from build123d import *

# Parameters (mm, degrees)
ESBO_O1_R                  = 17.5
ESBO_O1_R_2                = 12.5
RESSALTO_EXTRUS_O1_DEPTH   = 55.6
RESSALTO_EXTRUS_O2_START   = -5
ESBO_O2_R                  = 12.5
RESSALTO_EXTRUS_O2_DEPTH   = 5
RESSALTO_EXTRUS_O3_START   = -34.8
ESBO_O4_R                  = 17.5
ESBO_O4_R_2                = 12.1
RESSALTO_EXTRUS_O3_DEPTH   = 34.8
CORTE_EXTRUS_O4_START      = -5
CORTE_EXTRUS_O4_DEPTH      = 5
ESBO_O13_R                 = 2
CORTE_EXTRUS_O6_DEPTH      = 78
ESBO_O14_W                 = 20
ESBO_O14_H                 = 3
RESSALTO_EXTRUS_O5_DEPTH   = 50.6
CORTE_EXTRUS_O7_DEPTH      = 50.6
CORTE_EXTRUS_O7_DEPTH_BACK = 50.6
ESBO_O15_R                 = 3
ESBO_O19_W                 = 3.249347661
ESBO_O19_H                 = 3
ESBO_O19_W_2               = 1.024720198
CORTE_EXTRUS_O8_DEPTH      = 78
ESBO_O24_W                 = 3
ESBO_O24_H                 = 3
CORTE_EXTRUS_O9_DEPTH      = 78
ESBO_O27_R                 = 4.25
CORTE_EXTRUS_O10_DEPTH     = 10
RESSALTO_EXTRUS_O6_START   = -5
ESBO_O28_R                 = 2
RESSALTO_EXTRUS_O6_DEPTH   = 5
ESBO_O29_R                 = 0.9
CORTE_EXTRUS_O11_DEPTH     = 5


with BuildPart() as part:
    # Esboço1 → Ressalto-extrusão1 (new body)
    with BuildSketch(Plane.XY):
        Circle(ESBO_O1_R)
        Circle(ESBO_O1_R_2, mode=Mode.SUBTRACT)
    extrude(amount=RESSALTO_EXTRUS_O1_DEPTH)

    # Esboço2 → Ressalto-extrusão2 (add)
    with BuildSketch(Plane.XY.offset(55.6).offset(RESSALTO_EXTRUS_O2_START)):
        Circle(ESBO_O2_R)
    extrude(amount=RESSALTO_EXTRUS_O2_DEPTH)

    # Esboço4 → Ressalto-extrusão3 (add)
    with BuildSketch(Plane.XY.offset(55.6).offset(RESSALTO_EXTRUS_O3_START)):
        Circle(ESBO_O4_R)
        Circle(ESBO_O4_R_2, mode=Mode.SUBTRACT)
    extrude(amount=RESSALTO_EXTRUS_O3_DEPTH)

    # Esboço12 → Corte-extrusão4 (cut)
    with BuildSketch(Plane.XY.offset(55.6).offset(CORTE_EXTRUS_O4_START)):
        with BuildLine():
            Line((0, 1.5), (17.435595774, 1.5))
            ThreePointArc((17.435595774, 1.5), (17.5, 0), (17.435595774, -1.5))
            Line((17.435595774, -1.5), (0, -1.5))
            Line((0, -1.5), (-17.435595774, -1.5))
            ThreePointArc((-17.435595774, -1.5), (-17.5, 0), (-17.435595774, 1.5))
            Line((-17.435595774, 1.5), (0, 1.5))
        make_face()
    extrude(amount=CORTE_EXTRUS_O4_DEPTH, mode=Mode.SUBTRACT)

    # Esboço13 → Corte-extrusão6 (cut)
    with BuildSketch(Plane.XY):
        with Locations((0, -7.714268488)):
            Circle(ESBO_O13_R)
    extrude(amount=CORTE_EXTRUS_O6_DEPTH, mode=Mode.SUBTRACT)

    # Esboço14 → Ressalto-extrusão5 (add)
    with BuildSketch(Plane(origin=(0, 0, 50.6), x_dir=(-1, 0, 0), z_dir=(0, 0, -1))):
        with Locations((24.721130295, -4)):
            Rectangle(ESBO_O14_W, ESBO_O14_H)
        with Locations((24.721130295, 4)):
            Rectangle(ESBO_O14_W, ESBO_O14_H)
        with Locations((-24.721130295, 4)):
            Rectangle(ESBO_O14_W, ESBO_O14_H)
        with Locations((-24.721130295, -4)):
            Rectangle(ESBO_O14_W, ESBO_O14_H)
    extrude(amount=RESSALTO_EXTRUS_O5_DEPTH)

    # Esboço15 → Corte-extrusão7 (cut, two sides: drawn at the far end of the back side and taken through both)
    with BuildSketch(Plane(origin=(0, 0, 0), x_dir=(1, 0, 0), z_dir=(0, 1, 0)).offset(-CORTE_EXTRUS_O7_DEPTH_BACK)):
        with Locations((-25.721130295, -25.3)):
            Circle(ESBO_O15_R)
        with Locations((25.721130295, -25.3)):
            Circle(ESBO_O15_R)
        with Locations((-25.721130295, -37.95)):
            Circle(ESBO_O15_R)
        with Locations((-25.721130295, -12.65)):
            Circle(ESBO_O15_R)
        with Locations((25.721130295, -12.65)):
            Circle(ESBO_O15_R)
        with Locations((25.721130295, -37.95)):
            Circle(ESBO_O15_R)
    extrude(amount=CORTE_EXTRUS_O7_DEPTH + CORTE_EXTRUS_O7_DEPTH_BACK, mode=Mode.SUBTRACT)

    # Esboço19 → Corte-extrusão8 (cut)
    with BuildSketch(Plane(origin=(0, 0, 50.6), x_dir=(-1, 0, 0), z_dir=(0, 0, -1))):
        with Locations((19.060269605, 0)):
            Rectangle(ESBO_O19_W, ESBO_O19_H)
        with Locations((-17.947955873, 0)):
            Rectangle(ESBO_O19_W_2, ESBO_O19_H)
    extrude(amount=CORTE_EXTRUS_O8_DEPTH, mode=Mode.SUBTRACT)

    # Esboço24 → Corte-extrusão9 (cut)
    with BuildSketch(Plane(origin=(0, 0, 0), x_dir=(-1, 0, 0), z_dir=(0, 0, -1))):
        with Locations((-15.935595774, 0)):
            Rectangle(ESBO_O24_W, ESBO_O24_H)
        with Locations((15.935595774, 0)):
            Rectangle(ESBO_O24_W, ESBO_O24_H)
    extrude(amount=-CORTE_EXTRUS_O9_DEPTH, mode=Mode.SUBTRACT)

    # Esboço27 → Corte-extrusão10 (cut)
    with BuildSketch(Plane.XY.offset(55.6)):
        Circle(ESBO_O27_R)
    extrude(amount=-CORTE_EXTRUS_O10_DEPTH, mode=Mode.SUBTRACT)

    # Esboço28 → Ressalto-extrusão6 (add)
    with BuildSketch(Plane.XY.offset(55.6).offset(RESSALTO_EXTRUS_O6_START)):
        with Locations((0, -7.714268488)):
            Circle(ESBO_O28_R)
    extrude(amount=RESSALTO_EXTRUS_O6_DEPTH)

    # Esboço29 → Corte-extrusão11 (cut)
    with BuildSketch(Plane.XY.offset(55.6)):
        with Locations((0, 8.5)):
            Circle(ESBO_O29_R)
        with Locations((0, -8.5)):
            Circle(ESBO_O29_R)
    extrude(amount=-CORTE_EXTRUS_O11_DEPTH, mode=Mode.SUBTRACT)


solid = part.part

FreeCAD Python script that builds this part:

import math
import FreeCAD as App
import Part
import Sketcher
from FreeCAD import Vector
Q = App.Units.Quantity


def add_polygon(sketch, points):
    """Adds a closed chain of lines whose ends are joined by coincident constraints."""
    first, n = sketch.GeometryCount, len(points)
    for a, b in zip(points, points[1:] + points[:1]):
        sketch.addGeometry(Part.LineSegment(App.Vector(*a, 0), App.Vector(*b, 0)), False)
    for i in range(n):
        sketch.addConstraint(Sketcher.Constraint("Coincident", first + i, 2, first + (i + 1) % n, 1))

doc = App.newDocument("Part")
body = doc.addObject("PartDesign::Body", "Body")

# Sketch on XY plane
sketch1 = body.newObject("Sketcher::SketchObject", "Sketch")
sketch1.AttachmentSupport = (doc.getObject("XY_Plane"), [""])
sketch1.MapMode = "FlatFace"
sketch1.addGeometry(Part.Circle(Vector(0, 0, 0), Vector(0, 0, 1), 17.5), False)
sketch1.addGeometry(Part.Circle(Vector(0, 0, 0), Vector(0, 0, 1), 12.5), False)
sketch1.addConstraint(Sketcher.Constraint("Coincident", 0, 3, -1, 1))
sketch1.addConstraint(Sketcher.Constraint("Coincident", 1, 3, -1, 1))
sketch1.addConstraint(Sketcher.Constraint("Diameter", 0, Q("35 mm")))
sketch1.addConstraint(Sketcher.Constraint("Diameter", 1, Q("25 mm")))
pad1 = body.newObject("PartDesign::Pad", "Pad")
pad1.Profile = sketch1
pad1.Length = 55.6

# Sketch on XY plane
sketch2 = body.newObject("Sketcher::SketchObject", "Sketch001")
sketch2.AttachmentSupport = (doc.getObject("XY_Plane"), [""])
sketch2.MapMode = "FlatFace"
sketch2.AttachmentOffset = App.Placement(Vector(0, 0, 50.6), App.Rotation())
sketch2.addGeometry(Part.Circle(Vector(0, 0, 0), Vector(0, 0, 1), 12.5), False)
sketch2.addConstraint(Sketcher.Constraint("Coincident", 0, 3, -1, 1))
sketch2.addConstraint(Sketcher.Constraint("Diameter", 0, Q("25 mm")))
pad2 = body.newObject("PartDesign::Pad", "Pad001")
pad2.Profile = sketch2
pad2.Length = 5

# Sketch on XY plane
sketch3 = body.newObject("Sketcher::SketchObject", "Sketch002")
sketch3.AttachmentSupport = (doc.getObject("XY_Plane"), [""])
sketch3.MapMode = "FlatFace"
sketch3.AttachmentOffset = App.Placement(Vector(0, 0, 20.8), App.Rotation())
sketch3.addGeometry(Part.Circle(Vector(0, 0, 0), Vector(0, 0, 1), 17.5), False)
sketch3.addGeometry(Part.Circle(Vector(0, 0, 0), Vector(0, 0, 1), 12.1), False)
sketch3.addConstraint(Sketcher.Constraint("Coincident", 0, 3, -1, 1))
sketch3.addConstraint(Sketcher.Constraint("Coincident", 1, 3, -1, 1))
sketch3.addConstraint(Sketcher.Constraint("Diameter", 0, Q("35 mm")))
sketch3.addConstraint(Sketcher.Constraint("Diameter", 1, Q("24.2 mm")))
pad3 = body.newObject("PartDesign::Pad", "Pad002")
pad3.Profile = sketch3
pad3.Length = 34.8

# Sketch on XY plane
sketch4 = body.newObject("Sketcher::SketchObject", "Sketch003")
sketch4.AttachmentSupport = (doc.getObject("XY_Plane"), [""])
sketch4.MapMode = "FlatFace"
sketch4.AttachmentOffset = App.Placement(Vector(0, 0, 50.6), App.Rotation())
sketch4.addGeometry(Part.ArcOfCircle(Part.Circle(Vector(0, 0, 0), Vector(0, 0, 1), 17.5), math.radians(-4.9171), math.radians(4.9171)), False)
sketch4.addGeometry(Part.LineSegment(Vector(17.435596, 1.5, 0), Vector(-17.435596, 1.5, 0)), False)
sketch4.addGeometry(Part.ArcOfCircle(Part.Circle(Vector(0, 0, 0), Vector(0, 0, 1), 17.5), math.radians(175.0829), math.radians(184.9171)), False)
sketch4.addGeometry(Part.LineSegment(Vector(-17.435596, -1.5, 0), Vector(17.435596, -1.5, 0)), False)
sketch4.addConstraint(Sketcher.Constraint("Coincident", 0, 2, 1, 1))
sketch4.addConstraint(Sketcher.Constraint("Coincident", 1, 2, 2, 1))
sketch4.addConstraint(Sketcher.Constraint("Coincident", 2, 2, 3, 1))
sketch4.addConstraint(Sketcher.Constraint("Coincident", 3, 2, 0, 1))
sketch4.addConstraint(Sketcher.Constraint("Horizontal", 1))
sketch4.addConstraint(Sketcher.Constraint("Horizontal", 3))
sketch4.addConstraint(Sketcher.Constraint("Coincident", 0, 3, -1, 1))
sketch4.addConstraint(Sketcher.Constraint("Coincident", 2, 3, -1, 1))
sketch4.addConstraint(Sketcher.Constraint("Equal", 0, 2))
sketch4.addConstraint(Sketcher.Constraint("Vertical", 1, 2, 2, 2))
sketch4.addConstraint(Sketcher.Constraint("Radius", 0, Q("17.5 mm")))
sketch4.addConstraint(Sketcher.Constraint("DistanceY", 2, 2, 1, 2, Q("3 mm")))
pocket1 = body.newObject("PartDesign::Pocket", "Pocket")
pocket1.Profile = sketch4
pocket1.Length = 5
pocket1.Reversed = True

# Sketch on XY plane
sketch5 = body.newObject("Sketcher::SketchObject", "Sketch004")
sketch5.AttachmentSupport = (doc.getObject("XY_Plane"), [""])
sketch5.MapMode = "FlatFace"
sketch5.addGeometry(Part.Circle(Vector(0, -7.714268, 0), Vector(0, 0, 1), 2), False)
sketch5.addConstraint(Sketcher.Constraint("PointOnObject", 0, 3, -2))
sketch5.addConstraint(Sketcher.Constraint("Diameter", 0, Q("4 mm")))
sketch5.addConstraint(Sketcher.Constraint("DistanceY", 0, 3, -1, 1, Q("7.714268 mm")))
pocket2 = body.newObject("PartDesign::Pocket", "Pocket001")
pocket2.Profile = sketch5
pocket2.Length = 78
pocket2.Reversed = True

# Sketch on XY plane
sketch6 = body.newObject("Sketcher::SketchObject", "Sketch005")
sketch6.AttachmentSupport = (doc.getObject("XY_Plane"), [""])
sketch6.MapMode = "FlatFace"
sketch6.AttachmentOffset = App.Placement(Vector(0, 0, 50.6), App.Rotation())
add_polygon(sketch6, [(-14.72113, -2.5), (-14.72113, -5.5), (-34.72113, -5.5), (-34.72113, -2.5)])  # lines 0-3
add_polygon(sketch6, [(-14.72113, 5.5), (-14.72113, 2.5), (-34.72113, 2.5), (-34.72113, 5.5)])  # lines 4-7
add_polygon(sketch6, [(34.72113, 5.5), (34.72113, 2.5), (14.72113, 2.5), (14.72113, 5.5)])  # lines 8-11
add_polygon(sketch6, [(34.72113, -2.5), (34.72113, -5.5), (14.72113, -5.5), (14.72113, -2.5)])  # lines 12-15
sketch6.addConstraint(Sketcher.Constraint("Vertical", 0))
sketch6.addConstraint(Sketcher.Constraint("Horizontal", 1))
sketch6.addConstraint(Sketcher.Constraint("Vertical", 2))
sketch6.addConstraint(Sketcher.Constraint("Horizontal", 3))
sketch6.addConstraint(Sketcher.Constraint("Vertical", 4))
sketch6.addConstraint(Sketcher.Constraint("Horizontal", 5))
sketch6.addConstraint(Sketcher.Constraint("Vertical", 6))
sketch6.addConstraint(Sketcher.Constraint("Horizontal", 7))
sketch6.addConstraint(Sketcher.Constraint("Vertical", 8))
sketch6.addConstraint(Sketcher.Constraint("Horizontal", 9))
sketch6.addConstraint(Sketcher.Constraint("Vertical", 10))
sketch6.addConstraint(Sketcher.Constraint("Horizontal", 11))
sketch6.addConstraint(Sketcher.Constraint("Vertical", 12))
sketch6.addConstraint(Sketcher.Constraint("Horizontal", 13))
sketch6.addConstraint(Sketcher.Constraint("Vertical", 14))
sketch6.addConstraint(Sketcher.Constraint("Horizontal", 15))
sketch6.addConstraint(Sketcher.Constraint("Symmetric", 2, 2, 8, 2, -1, 1))
sketch6.addConstraint(Sketcher.Constraint("Symmetric", 0, 2, 10, 2, -1, 1))
sketch6.addConstraint(Sketcher.Constraint("Symmetric", 6, 2, 12, 2, -1, 1))
sketch6.addConstraint(Sketcher.Constraint("Symmetric", 4, 2, 14, 2, -1, 1))
sketch6.addConstraint(Sketcher.Constraint("Symmetric", 5, 2, 8, 2, -2))
sketch6.addConstraint(Sketcher.Constraint("Symmetric", 7, 2, 10, 2, -2))
sketch6.addConstraint(Sketcher.Constraint("DistanceX", 1, 2, 1, 1, Q("20 mm")))
sketch6.addConstraint(Sketcher.Constraint("DistanceY", 0, 2, 0, 1, Q("3 mm")))
sketch6.addConstraint(Sketcher.Constraint("DistanceY", 3, 2, 4, 2, Q("5 mm")))
sketch6.addConstraint(Sketcher.Constraint("DistanceX", 0, 2, -1, 1, Q("14.72113 mm")))
pad4 = body.newObject("PartDesign::Pad", "Pad003")
pad4.Profile = sketch6
pad4.Length = 50.6
pad4.Reversed = True

# Sketch on XZ plane
sketch7 = body.newObject("Sketcher::SketchObject", "Sketch006")
sketch7.AttachmentSupport = (doc.getObject("XZ_Plane"), [""])
sketch7.MapMode = "FlatFace"
sketch7.addGeometry(Part.Circle(Vector(-25.72113, 25.3, 0), Vector(0, 0, 1), 3), False)
sketch7.addGeometry(Part.Circle(Vector(25.72113, 25.3, 0), Vector(0, 0, 1), 3), False)
sketch7.addGeometry(Part.Circle(Vector(-25.72113, 37.95, 0), Vector(0, 0, 1), 3), False)
sketch7.addGeometry(Part.Circle(Vector(-25.72113, 12.65, 0), Vector(0, 0, 1), 3), False)
sketch7.addGeometry(Part.Circle(Vector(25.72113, 12.65, 0), Vector(0, 0, 1), 3), False)
sketch7.addGeometry(Part.Circle(Vector(25.72113, 37.95, 0), Vector(0, 0, 1), 3), False)
sketch7.addConstraint(Sketcher.Constraint("Equal", 0, 1))
sketch7.addConstraint(Sketcher.Constraint("Equal", 1, 2))
sketch7.addConstraint(Sketcher.Constraint("Equal", 2, 3))
sketch7.addConstraint(Sketcher.Constraint("Equal", 3, 4))
sketch7.addConstraint(Sketcher.Constraint("Equal", 4, 5))
sketch7.addConstraint(Sketcher.Constraint("Symmetric", 0, 3, 1, 3, -2))
sketch7.addConstraint(Sketcher.Constraint("Symmetric", 3, 3, 4, 3, -2))
sketch7.addConstraint(Sketcher.Constraint("Symmetric", 2, 3, 5, 3, -2))
sketch7.addConstraint(Sketcher.Constraint("Vertical", 0, 3, 2, 3))
sketch7.addConstraint(Sketcher.Constraint("Vertical", 2, 3, 3, 3))
sketch7.addConstraint(Sketcher.Constraint("Diameter", 0, Q("6 mm")))
sketch7.addConstraint(Sketcher.Constraint("DistanceY", -1, 1, 0, 3, Q("25.3 mm")))
sketch7.addConstraint(Sketcher.Constraint("DistanceY", 3, 3, 2, 3, Q("25.3 mm")))
sketch7.addConstraint(Sketcher.Constraint("DistanceY", -1, 1, 2, 3, Q("37.95 mm")))
sketch7.addConstraint(Sketcher.Constraint("DistanceX", 0, 3, -1, 1, Q("25.72113 mm")))
pocket3 = body.newObject("PartDesign::Pocket", "Pocket002")
pocket3.Profile = sketch7
pocket3.Type = "ThroughAll"
pocket3.Midplane = True

# Sketch on XY plane
sketch8 = body.newObject("Sketcher::SketchObject", "Sketch007")
sketch8.AttachmentSupport = (doc.getObject("XY_Plane"), [""])
sketch8.MapMode = "FlatFace"
sketch8.AttachmentOffset = App.Placement(Vector(0, 0, 50.6), App.Rotation())
add_polygon(sketch8, [(-17.435596, 1.5), (-17.435596, -1.5), (-20.684943, -1.5), (-20.684943, 1.5)])  # lines 0-3
add_polygon(sketch8, [(18.460316, 1.5), (18.460316, -1.5), (17.435596, -1.5), (17.435596, 1.5)])  # lines 4-7
sketch8.addConstraint(Sketcher.Constraint("Vertical", 0))
sketch8.addConstraint(Sketcher.Constraint("Horizontal", 1))
sketch8.addConstraint(Sketcher.Constraint("Vertical", 2))
sketch8.addConstraint(Sketcher.Constraint("Horizontal", 3))
sketch8.addConstraint(Sketcher.Constraint("Vertical", 4))
sketch8.addConstraint(Sketcher.Constraint("Horizontal", 5))
sketch8.addConstraint(Sketcher.Constraint("Vertical", 6))
sketch8.addConstraint(Sketcher.Constraint("Horizontal", 7))
sketch8.addConstraint(Sketcher.Constraint("Symmetric", 3, 2, 5, 2, -1, 1))
sketch8.addConstraint(Sketcher.Constraint("Horizontal", 1, 2, 4, 2))
sketch8.addConstraint(Sketcher.Constraint("Horizontal", 3, 2, 6, 2))
sketch8.addConstraint(Sketcher.Constraint("DistanceY", 0, 2, 0, 1, Q("3 mm")))
sketch8.addConstraint(Sketcher.Constraint("DistanceX", 5, 2, 5, 1, Q("1.02472 mm")))
sketch8.addConstraint(Sketcher.Constraint("DistanceX", 1, 2, 1, 1, Q("3.249348 mm")))
sketch8.addConstraint(Sketcher.Constraint("DistanceX", 0, 2, 4, 2, Q("35.895912 mm")))
pocket4 = body.newObject("PartDesign::Pocket", "Pocket003")
pocket4.Profile = sketch8
pocket4.Length = 78

# Sketch on XY plane
sketch9 = body.newObject("Sketcher::SketchObject", "Sketch008")
sketch9.AttachmentSupport = (doc.getObject("XY_Plane"), [""])
sketch9.MapMode = "FlatFace"
add_polygon(sketch9, [(17.435596, 1.5), (17.435596, -1.5), (14.435596, -1.5), (14.435596, 1.5)])  # lines 0-3
add_polygon(sketch9, [(-14.435596, 1.5), (-14.435596, -1.5), (-17.435596, -1.5), (-17.435596, 1.5)])  # lines 4-7
sketch9.addConstraint(Sketcher.Constraint("Vertical", 0))
sketch9.addConstraint(Sketcher.Constraint("Horizontal", 1))
sketch9.addConstraint(Sketcher.Constraint("Vertical", 2))
sketch9.addConstraint(Sketcher.Constraint("Horizontal", 3))
sketch9.addConstraint(Sketcher.Constraint("Vertical", 4))
sketch9.addConstraint(Sketcher.Constraint("Horizontal", 5))
sketch9.addConstraint(Sketcher.Constraint("Vertical", 6))
sketch9.addConstraint(Sketcher.Constraint("Horizontal", 7))
sketch9.addConstraint(Sketcher.Constraint("Symmetric", 2, 2, 4, 2, -1, 1))
sketch9.addConstraint(Sketcher.Constraint("Symmetric", 0, 2, 6, 2, -1, 1))
sketch9.addConstraint(Sketcher.Constraint("Horizontal", 1, 2, 4, 2))
sketch9.addConstraint(Sketcher.Constraint("Equal", 7, 0))
sketch9.addConstraint(Sketcher.Constraint("DistanceX", 1, 2, 1, 1, Q("3 mm")))
sketch9.addConstraint(Sketcher.Constraint("DistanceX", 4, 2, 1, 2, Q("28.871192 mm")))
pocket5 = body.newObject("PartDesign::Pocket", "Pocket004")
pocket5.Profile = sketch9
pocket5.Length = 78
pocket5.Reversed = True

# Sketch on XY plane
sketch10 = body.newObject("Sketcher::SketchObject", "Sketch009")
sketch10.AttachmentSupport = (doc.getObject("XY_Plane"), [""])
sketch10.MapMode = "FlatFace"
sketch10.AttachmentOffset = App.Placement(Vector(0, 0, 55.6), App.Rotation())
sketch10.addGeometry(Part.Circle(Vector(0, 0, 0), Vector(0, 0, 1), 4.25), False)
sketch10.addConstraint(Sketcher.Constraint("Coincident", 0, 3, -1, 1))
sketch10.addConstraint(Sketcher.Constraint("Diameter", 0, Q("8.5 mm")))
pocket6 = body.newObject("PartDesign::Pocket", "Pocket005")
pocket6.Profile = sketch10
pocket6.Length = 10

# Sketch on XY plane
sketch11 = body.newObject("Sketcher::SketchObject", "Sketch010")
sketch11.AttachmentSupport = (doc.getObject("XY_Plane"), [""])
sketch11.MapMode = "FlatFace"
sketch11.AttachmentOffset = App.Placement(Vector(0, 0, 50.6), App.Rotation())
sketch11.addGeometry(Part.Circle(Vector(0, -7.714268, 0), Vector(0, 0, 1), 2), False)
sketch11.addConstraint(Sketcher.Constraint("PointOnObject", 0, 3, -2))
sketch11.addConstraint(Sketcher.Constraint("Diameter", 0, Q("4 mm")))
sketch11.addConstraint(Sketcher.Constraint("DistanceY", 0, 3, -1, 1, Q("7.714268 mm")))
pad5 = body.newObject("PartDesign::Pad", "Pad004")
pad5.Profile = sketch11
pad5.Length = 5

# Sketch on XY plane
sketch12 = body.newObject("Sketcher::SketchObject", "Sketch011")
sketch12.AttachmentSupport = (doc.getObject("XY_Plane"), [""])
sketch12.MapMode = "FlatFace"
sketch12.AttachmentOffset = App.Placement(Vector(0, 0, 55.6), App.Rotation())
sketch12.addGeometry(Part.Circle(Vector(0, 8.5, 0), Vector(0, 0, 1), 0.9), False)
sketch12.addGeometry(Part.Circle(Vector(0, -8.5, 0), Vector(0, 0, 1), 0.9), False)
sketch12.addConstraint(Sketcher.Constraint("Equal", 0, 1))
sketch12.addConstraint(Sketcher.Constraint("Symmetric", 0, 3, 1, 3, -1, 1))
sketch12.addConstraint(Sketcher.Constraint("PointOnObject", 0, 3, -2))
sketch12.addConstraint(Sketcher.Constraint("Diameter", 0, Q("1.8 mm")))
sketch12.addConstraint(Sketcher.Constraint("DistanceY", 1, 3, 0, 3, Q("17 mm")))
pocket7 = body.newObject("PartDesign::Pocket", "Pocket006")
pocket7.Profile = sketch12
pocket7.Length = 5

doc.recompute()
